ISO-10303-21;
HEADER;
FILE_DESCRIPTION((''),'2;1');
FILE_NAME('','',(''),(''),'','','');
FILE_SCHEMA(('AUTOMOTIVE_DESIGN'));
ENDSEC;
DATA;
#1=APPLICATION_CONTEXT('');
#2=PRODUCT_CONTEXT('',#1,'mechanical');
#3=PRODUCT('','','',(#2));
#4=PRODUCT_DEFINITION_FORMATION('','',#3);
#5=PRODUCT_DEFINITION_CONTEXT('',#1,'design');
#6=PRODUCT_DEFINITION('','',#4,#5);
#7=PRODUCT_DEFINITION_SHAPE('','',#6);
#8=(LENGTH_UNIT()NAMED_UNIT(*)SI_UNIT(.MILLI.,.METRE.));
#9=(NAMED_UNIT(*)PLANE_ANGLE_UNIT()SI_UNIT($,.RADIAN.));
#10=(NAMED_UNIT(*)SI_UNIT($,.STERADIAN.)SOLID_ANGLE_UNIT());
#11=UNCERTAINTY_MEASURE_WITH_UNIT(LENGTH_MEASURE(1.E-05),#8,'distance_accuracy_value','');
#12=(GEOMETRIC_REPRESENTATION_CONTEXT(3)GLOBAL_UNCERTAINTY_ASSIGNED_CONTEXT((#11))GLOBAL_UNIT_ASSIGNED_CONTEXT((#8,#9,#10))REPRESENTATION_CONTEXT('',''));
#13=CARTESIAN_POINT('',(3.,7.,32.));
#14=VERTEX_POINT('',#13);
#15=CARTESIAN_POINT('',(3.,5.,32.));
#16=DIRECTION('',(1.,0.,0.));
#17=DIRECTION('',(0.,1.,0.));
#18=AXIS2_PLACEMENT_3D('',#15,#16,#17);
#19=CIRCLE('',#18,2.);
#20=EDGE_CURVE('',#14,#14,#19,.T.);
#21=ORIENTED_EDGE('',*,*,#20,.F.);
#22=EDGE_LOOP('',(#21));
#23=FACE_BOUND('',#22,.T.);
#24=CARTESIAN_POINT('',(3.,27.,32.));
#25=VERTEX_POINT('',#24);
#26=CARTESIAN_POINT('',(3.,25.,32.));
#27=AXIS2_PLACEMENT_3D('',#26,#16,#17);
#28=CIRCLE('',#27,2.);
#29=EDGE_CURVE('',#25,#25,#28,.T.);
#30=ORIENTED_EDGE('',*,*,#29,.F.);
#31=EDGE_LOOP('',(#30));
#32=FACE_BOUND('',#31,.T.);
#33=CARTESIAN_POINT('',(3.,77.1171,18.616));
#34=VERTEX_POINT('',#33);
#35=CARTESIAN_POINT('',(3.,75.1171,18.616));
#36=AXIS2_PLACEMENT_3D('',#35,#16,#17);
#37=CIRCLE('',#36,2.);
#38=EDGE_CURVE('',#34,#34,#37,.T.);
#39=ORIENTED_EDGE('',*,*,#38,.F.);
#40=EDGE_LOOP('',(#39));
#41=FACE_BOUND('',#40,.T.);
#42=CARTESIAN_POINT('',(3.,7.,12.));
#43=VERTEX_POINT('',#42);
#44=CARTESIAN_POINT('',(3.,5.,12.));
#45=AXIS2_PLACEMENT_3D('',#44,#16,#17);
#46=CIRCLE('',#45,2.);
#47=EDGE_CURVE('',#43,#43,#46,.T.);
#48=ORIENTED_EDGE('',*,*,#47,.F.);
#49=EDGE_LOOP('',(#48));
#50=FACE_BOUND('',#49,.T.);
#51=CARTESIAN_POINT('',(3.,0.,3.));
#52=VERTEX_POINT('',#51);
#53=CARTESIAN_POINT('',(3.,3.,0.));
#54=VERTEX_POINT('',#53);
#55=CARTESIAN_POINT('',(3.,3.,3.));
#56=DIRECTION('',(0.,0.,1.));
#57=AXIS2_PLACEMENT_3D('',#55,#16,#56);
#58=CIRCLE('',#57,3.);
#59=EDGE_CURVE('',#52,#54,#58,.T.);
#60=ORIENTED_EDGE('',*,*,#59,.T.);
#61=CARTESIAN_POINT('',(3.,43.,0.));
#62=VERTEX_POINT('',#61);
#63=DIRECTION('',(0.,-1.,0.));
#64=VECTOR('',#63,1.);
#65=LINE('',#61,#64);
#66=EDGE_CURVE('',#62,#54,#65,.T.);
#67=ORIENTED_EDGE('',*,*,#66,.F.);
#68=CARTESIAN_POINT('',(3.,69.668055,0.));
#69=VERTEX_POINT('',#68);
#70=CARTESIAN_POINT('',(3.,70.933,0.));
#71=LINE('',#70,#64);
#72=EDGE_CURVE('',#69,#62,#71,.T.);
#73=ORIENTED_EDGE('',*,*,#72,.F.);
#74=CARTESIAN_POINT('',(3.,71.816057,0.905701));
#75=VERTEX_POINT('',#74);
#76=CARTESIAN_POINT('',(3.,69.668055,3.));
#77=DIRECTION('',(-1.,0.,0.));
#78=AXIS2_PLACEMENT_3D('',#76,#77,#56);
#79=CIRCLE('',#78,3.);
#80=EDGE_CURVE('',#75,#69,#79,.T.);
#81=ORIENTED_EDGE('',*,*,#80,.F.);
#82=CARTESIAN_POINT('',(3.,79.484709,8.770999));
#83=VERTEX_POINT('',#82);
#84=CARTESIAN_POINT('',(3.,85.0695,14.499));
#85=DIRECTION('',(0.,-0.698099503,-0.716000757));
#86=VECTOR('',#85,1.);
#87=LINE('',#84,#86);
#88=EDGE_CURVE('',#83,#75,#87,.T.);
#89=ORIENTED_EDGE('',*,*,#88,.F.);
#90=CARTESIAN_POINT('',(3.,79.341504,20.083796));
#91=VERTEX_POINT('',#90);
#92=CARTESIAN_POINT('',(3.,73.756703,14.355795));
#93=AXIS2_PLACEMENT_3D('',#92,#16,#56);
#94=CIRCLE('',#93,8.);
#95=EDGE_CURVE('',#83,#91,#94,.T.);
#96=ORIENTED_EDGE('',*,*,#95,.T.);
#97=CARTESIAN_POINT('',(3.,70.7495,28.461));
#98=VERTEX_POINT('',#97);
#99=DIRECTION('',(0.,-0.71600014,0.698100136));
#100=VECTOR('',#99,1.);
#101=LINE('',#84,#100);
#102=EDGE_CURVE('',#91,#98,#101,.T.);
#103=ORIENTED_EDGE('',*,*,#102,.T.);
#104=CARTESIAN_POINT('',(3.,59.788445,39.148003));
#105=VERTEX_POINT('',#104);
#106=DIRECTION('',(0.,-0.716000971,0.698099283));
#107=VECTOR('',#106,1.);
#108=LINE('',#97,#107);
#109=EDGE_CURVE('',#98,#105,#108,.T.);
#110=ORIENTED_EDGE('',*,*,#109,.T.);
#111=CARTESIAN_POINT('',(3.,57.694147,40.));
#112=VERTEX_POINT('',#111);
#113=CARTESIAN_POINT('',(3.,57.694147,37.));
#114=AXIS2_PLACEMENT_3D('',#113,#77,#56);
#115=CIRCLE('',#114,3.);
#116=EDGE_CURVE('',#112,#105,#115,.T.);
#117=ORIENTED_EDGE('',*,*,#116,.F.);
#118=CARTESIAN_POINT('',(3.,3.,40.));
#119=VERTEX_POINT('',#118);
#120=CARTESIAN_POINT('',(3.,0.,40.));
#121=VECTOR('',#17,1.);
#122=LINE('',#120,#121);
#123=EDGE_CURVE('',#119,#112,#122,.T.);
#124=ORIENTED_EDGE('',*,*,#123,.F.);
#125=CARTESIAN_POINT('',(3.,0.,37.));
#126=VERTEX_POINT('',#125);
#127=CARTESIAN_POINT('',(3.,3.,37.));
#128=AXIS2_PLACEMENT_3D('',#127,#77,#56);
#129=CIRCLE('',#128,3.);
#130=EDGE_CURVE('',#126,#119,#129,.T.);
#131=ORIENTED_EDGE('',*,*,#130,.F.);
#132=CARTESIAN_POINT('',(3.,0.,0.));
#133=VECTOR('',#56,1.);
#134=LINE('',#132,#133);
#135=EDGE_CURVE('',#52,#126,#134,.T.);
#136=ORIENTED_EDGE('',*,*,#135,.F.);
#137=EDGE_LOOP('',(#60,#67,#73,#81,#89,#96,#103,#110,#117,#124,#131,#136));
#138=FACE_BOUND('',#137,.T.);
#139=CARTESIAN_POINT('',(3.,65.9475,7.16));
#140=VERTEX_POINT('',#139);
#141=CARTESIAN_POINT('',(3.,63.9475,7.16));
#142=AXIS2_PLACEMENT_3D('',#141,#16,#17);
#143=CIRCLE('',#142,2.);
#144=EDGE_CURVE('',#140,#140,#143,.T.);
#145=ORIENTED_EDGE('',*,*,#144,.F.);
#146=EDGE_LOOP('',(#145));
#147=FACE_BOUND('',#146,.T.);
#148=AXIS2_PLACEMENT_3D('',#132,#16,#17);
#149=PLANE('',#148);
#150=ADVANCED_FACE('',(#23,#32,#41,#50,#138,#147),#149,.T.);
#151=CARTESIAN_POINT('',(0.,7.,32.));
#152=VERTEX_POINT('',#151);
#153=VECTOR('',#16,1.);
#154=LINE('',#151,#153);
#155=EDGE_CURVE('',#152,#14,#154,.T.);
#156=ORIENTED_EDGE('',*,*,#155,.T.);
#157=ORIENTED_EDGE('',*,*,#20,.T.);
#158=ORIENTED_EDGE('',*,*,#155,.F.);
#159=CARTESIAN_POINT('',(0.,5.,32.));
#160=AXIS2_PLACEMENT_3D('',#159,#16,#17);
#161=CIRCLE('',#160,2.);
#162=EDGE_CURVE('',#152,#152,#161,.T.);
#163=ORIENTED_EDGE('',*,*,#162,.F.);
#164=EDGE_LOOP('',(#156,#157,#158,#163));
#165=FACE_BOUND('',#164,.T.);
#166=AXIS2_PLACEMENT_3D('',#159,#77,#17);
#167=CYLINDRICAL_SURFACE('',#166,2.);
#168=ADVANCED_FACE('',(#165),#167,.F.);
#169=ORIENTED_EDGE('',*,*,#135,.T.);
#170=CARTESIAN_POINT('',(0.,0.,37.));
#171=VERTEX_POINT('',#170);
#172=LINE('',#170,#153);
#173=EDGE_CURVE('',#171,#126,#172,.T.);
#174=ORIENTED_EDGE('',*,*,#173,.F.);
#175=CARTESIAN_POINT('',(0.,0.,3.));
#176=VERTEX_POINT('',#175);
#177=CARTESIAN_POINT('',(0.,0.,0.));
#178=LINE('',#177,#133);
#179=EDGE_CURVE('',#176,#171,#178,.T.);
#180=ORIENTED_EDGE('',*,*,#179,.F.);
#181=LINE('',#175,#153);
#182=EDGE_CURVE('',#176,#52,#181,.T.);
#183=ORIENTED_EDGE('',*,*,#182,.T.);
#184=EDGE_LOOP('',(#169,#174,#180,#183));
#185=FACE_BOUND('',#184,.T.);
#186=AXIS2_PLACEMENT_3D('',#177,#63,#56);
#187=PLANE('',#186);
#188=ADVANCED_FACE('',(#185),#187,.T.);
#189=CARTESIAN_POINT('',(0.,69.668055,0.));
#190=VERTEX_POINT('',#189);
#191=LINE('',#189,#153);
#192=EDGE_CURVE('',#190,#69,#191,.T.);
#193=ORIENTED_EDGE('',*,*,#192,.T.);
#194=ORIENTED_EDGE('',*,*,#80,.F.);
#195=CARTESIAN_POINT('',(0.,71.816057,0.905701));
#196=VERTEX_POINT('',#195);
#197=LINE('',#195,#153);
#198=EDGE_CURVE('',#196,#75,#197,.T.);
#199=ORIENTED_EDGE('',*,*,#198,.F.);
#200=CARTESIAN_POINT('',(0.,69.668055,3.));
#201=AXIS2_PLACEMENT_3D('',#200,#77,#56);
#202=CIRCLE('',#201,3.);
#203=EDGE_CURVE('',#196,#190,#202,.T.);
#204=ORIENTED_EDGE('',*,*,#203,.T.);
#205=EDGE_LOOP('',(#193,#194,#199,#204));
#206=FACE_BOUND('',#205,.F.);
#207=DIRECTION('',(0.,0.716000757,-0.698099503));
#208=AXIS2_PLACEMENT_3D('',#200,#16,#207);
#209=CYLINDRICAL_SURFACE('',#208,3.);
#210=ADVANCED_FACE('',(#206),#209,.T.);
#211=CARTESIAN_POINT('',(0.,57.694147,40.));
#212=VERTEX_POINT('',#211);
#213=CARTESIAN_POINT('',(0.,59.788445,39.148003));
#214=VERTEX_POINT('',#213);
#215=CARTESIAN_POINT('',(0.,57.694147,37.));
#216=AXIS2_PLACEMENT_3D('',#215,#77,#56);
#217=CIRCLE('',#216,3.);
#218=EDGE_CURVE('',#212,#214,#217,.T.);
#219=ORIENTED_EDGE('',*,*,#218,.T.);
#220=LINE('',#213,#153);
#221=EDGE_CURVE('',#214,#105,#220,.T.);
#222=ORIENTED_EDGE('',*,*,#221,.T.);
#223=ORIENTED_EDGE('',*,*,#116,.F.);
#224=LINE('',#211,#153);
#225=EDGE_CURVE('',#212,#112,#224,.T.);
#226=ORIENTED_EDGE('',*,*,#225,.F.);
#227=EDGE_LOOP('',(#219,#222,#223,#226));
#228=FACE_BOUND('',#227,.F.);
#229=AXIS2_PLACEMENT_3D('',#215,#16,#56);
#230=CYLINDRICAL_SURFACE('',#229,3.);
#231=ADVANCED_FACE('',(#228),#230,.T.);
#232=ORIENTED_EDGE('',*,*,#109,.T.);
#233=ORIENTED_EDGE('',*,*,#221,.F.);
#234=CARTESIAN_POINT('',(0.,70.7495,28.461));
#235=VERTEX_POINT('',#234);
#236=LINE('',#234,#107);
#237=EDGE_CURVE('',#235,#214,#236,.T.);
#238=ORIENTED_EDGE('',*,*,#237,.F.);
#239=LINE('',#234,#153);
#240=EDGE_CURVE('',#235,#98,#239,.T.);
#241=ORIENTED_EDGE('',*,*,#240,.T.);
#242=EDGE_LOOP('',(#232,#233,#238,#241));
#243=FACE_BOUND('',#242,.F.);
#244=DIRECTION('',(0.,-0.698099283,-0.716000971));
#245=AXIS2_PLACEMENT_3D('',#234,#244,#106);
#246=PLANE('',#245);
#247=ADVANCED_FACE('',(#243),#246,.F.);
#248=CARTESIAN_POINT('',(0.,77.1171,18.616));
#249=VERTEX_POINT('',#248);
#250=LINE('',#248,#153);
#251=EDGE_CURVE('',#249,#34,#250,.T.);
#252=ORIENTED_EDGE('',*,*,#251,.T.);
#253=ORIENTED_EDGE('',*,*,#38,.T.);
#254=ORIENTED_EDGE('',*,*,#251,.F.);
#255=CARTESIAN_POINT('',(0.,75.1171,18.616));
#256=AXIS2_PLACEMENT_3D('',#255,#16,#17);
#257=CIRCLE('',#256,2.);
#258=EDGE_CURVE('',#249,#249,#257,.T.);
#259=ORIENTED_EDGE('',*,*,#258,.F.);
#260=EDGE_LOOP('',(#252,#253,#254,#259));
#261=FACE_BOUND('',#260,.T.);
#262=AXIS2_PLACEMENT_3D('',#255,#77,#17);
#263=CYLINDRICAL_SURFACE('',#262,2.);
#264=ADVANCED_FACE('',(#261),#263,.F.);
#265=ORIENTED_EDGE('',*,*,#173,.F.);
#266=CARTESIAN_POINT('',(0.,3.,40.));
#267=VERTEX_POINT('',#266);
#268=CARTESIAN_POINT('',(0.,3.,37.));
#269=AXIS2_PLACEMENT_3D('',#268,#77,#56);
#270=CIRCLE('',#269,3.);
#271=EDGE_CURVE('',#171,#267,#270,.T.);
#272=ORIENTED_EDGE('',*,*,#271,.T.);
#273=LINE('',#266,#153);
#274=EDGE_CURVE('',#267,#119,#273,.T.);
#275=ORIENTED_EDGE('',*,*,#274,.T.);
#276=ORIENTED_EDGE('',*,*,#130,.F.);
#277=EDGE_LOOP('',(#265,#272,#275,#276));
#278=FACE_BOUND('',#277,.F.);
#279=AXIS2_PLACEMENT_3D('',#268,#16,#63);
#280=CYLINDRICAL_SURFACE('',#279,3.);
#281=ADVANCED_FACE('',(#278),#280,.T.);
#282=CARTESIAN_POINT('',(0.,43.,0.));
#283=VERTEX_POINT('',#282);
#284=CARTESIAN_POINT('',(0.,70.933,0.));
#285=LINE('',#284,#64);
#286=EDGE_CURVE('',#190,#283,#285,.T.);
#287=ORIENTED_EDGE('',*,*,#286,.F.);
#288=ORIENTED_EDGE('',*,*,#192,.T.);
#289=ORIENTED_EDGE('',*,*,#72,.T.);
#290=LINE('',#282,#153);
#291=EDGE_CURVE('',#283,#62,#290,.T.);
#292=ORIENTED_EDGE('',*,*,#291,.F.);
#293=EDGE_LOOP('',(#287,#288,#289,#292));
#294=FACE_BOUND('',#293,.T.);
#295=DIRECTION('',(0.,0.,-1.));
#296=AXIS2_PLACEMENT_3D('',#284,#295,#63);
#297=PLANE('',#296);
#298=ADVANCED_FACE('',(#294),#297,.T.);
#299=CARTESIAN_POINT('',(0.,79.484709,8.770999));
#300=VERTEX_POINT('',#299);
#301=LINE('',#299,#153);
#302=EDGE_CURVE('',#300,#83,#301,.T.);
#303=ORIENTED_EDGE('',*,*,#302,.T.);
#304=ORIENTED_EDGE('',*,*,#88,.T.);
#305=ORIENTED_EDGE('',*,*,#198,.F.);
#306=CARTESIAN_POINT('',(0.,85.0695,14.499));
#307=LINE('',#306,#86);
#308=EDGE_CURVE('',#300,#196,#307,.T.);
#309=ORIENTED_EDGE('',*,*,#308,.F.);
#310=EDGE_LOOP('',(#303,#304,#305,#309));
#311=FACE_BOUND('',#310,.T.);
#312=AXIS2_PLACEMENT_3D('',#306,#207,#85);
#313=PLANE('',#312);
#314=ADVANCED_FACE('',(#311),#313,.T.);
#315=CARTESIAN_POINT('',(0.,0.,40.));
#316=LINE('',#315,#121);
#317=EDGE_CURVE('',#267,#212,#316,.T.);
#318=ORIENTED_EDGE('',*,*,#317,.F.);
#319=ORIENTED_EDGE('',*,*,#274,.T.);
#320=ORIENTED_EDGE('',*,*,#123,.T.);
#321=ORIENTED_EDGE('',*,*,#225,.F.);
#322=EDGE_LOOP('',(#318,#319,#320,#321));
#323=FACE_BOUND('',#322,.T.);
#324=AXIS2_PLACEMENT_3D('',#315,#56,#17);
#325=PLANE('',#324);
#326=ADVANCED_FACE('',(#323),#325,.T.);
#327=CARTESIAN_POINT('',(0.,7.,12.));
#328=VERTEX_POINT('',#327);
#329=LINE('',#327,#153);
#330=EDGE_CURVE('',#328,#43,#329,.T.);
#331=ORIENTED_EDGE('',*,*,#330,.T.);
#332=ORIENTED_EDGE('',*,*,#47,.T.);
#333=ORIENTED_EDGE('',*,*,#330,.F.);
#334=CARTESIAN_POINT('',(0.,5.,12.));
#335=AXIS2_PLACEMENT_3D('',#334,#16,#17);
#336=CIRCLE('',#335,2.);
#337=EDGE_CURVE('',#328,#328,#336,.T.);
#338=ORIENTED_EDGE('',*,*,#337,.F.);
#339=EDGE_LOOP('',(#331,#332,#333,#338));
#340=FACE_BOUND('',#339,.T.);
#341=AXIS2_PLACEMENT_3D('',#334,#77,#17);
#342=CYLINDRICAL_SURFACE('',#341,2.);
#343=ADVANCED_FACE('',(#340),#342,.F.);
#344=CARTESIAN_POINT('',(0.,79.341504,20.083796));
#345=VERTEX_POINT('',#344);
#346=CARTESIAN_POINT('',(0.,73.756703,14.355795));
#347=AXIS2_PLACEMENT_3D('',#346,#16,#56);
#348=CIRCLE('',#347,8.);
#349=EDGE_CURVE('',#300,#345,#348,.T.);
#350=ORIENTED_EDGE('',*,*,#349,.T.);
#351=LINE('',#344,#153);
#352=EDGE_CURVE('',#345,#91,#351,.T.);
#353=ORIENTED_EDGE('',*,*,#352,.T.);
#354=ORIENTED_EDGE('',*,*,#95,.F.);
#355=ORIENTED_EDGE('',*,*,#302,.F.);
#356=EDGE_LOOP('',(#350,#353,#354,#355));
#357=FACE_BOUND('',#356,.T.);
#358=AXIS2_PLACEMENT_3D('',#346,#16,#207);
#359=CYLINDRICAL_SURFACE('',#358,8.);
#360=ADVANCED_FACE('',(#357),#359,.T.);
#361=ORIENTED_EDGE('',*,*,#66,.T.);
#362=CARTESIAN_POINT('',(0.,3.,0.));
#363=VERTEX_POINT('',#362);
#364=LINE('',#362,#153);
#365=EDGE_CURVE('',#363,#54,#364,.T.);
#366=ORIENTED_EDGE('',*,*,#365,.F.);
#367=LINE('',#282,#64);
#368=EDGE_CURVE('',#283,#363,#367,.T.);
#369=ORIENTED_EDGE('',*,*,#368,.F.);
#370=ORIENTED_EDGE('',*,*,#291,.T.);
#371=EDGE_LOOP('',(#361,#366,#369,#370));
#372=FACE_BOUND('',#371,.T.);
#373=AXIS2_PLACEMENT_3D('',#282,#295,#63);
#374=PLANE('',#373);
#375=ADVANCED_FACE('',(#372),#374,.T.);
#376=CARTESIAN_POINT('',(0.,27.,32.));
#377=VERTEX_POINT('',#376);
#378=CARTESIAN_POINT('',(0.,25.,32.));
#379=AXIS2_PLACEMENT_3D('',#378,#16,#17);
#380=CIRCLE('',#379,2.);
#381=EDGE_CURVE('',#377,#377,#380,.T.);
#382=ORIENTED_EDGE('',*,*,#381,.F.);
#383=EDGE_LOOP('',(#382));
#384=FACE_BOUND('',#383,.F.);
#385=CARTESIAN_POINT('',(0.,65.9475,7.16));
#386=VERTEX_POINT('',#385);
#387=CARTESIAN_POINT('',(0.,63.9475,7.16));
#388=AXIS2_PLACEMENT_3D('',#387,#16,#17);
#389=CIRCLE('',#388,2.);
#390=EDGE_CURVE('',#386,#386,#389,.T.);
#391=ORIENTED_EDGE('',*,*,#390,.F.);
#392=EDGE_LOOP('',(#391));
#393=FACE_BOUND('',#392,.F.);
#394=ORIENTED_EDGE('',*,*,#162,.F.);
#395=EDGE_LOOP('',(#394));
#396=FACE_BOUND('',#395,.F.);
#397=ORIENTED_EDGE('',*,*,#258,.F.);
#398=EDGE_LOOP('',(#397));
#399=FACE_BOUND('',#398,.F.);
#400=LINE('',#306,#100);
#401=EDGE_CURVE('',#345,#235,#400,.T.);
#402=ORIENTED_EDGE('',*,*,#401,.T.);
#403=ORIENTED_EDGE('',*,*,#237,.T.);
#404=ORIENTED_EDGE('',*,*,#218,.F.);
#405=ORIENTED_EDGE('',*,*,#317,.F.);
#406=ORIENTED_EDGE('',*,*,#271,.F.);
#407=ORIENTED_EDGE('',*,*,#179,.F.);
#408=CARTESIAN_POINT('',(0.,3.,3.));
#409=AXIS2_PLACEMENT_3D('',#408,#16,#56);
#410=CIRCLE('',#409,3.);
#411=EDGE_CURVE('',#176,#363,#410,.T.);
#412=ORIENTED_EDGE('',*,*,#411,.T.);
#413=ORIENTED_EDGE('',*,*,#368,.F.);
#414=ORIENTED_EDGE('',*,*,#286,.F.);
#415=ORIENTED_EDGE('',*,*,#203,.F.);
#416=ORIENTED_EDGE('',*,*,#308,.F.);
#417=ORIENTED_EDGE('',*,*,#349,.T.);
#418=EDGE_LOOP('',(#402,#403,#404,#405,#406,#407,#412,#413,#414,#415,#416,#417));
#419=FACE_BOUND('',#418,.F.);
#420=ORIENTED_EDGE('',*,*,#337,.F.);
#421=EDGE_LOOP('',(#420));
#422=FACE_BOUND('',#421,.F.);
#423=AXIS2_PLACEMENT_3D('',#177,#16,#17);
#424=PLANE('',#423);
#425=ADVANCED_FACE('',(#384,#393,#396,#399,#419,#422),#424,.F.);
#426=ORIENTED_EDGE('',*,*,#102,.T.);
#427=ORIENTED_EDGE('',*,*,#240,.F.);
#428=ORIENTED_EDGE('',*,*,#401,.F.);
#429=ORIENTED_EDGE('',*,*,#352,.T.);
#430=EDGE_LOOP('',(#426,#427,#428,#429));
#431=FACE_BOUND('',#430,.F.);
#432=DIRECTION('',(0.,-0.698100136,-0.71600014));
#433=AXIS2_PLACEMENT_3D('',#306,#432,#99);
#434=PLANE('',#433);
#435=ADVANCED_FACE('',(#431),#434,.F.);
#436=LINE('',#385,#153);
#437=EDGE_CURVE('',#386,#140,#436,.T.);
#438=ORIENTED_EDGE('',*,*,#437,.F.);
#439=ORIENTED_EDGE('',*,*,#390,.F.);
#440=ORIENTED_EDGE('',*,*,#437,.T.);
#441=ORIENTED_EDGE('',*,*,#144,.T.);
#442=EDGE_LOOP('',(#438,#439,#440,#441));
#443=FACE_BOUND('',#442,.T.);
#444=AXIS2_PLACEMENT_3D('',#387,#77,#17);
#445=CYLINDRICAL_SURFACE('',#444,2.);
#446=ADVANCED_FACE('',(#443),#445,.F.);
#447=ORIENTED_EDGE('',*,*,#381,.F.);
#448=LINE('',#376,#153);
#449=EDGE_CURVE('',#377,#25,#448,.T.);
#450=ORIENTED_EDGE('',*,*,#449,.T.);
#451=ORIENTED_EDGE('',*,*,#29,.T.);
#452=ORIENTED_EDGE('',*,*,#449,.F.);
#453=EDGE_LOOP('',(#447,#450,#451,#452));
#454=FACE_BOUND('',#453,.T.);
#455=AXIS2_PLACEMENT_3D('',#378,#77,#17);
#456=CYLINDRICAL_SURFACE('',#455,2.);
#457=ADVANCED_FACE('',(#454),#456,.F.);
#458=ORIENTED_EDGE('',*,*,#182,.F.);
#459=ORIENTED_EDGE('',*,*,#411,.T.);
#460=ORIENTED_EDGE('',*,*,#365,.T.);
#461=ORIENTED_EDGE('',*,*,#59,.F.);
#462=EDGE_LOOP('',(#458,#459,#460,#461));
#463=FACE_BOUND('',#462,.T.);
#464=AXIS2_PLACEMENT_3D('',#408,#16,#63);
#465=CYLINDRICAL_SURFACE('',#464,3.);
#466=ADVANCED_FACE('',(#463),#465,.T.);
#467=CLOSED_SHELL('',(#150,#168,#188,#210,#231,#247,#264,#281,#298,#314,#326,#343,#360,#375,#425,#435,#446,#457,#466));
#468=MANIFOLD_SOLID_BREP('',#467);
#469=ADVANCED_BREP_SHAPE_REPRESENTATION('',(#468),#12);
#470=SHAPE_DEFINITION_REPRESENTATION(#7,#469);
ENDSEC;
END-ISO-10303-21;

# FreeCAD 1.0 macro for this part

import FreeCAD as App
import Part
import Sketcher

V = App.Vector
Q = App.Units.Quantity


def edges_at(feature, points):
    """Names of the edges that pass closest to the given points."""
    edges = feature.Shape.Edges
    near = lambda p: min(range(len(edges)), key=lambda i: edges[i].distToShape(Part.Vertex(*p))[0])
    return sorted({f"Edge{near(p) + 1}" for p in points})

doc = App.newDocument("Part")
params = doc.addObject("Spreadsheet::Sheet", "Params")
for row, (alias, value) in enumerate([
    ("sketch1_diameter", "4 mm"),
    ("sketch1_height", "40 mm"),
    ("sketch1_length", "20 mm"),
    ("sketch1_length2", "20.25 mm"),
    ("pad1_length", "3 mm"),
    ("fillet_radius", "3 mm"),
    ("fillet2_radius", "8 mm"),
], start=1):
    params.set(f"A{row}", alias)
    params.set(f"B{row}", "=" + value)
    params.setAlias(f"B{row}", alias)

body = doc.addObject("PartDesign::Body", "Body")

# Sketch on YZ plane
sketch1 = body.newObject("Sketcher::SketchObject", "Sketch")
sketch1.AttachmentSupport = (doc.getObject("YZ_Plane"), [""])
sketch1.MapMode = "FlatFace"
sketch1.addGeometry([
    Part.LineSegment(V(0, 40, 0), V(0, 0, 0)),  # 0
    Part.LineSegment(V(0, 0, 0), V(70.9, 0, 0)),  # 1
    Part.LineSegment(V(70.9, 0, 0), V(85.1, 14.5, 0)),  # 2
    Part.LineSegment(V(85.1, 14.5, 0), V(70.7, 28.5, 0)),  # 3
    Part.LineSegment(V(70.7, 28.5, 0), V(58.9, 40, 0)),  # 4
    Part.LineSegment(V(58.9, 40, 0), V(0, 40, 0)),  # 5
    Part.Circle(V(5, 12, 0), V(0, 0, 1), 2),  # 6
    Part.Circle(V(63.9, 7.2, 0), V(0, 0, 1), 2),  # 7
    Part.Circle(V(75.1, 18.6, 0), V(0, 0, 1), 2),  # 8
    Part.Circle(V(5, 32, 0), V(0, 0, 1), 2),  # 9
    Part.Circle(V(25, 32, 0), V(0, 0, 1), 2),  # 10
], False)
sketch1.addConstraint([
    Sketcher.Constraint("Coincident", 0, 2, 1, 1),
    Sketcher.Constraint("Coincident", 1, 2, 2, 1),
    Sketcher.Constraint("Coincident", 2, 2, 3, 1),
    Sketcher.Constraint("Coincident", 3, 2, 4, 1),
    Sketcher.Constraint("Coincident", 4, 2, 5, 1),
    Sketcher.Constraint("Coincident", 5, 2, 0, 1),
    Sketcher.Constraint("Vertical", 0),
    Sketcher.Constraint("Horizontal", 1),
    Sketcher.Constraint("Horizontal", 5),
    Sketcher.Constraint("Coincident", 0, 2, -1, 1),
    Sketcher.Constraint("Equal", 6, 7),
    Sketcher.Constraint("Equal", 7, 8),
    Sketcher.Constraint("Equal", 8, 9),
    Sketcher.Constraint("Equal", 9, 10),
    Sketcher.Constraint("Perpendicular", 2, 3),
    Sketcher.Constraint("Parallel", 3, 4),
    Sketcher.Constraint("Horizontal", 9, 3, 10, 3),
    Sketcher.Constraint("Vertical", 6, 3, 9, 3),
    Sketcher.Constraint("Diameter", 6, Q("4 mm")),
    Sketcher.Constraint("DistanceY", 0, 2, 0, 1, Q("40 mm")),
    Sketcher.Constraint("Distance", 3, Q("20 mm")),
    Sketcher.Constraint("DistanceX", -1, 1, 6, 3, Q("5 mm")),
    Sketcher.Constraint("DistanceY", 6, 3, 9, 3, Q("20 mm")),
    Sketcher.Constraint("DistanceX", 9, 3, 10, 3, Q("20 mm")),
    Sketcher.Constraint("DistanceY", 10, 3, 4, 2, Q("8 mm")),
    Sketcher.Constraint("Distance", 2, Q("20.25 mm")),
    Sketcher.Constraint("DistanceX", 1, 1, 1, 2, Q("70.933 mm")),
    Sketcher.Constraint("DistanceY", -1, 1, 7, 3, Q("7.16 mm")),
    Sketcher.Constraint("DistanceX", 3, 2, 2, 2, Q("14.32 mm")),
    Sketcher.Constraint("DistanceX", -1, 1, 8, 3, Q("75.117 mm")),
    Sketcher.Constraint("DistanceY", -1, 1, 8, 3, Q("18.616 mm")),
    Sketcher.Constraint("DistanceX", 7, 3, 2, 2, Q("21.122 mm")),
])
sketch1.setExpression("Constraints[18]", "Params.sketch1_diameter")
sketch1.setExpression("Constraints[19]", "Params.sketch1_height")
sketch1.setExpression("Constraints[20]", "Params.sketch1_length")
sketch1.setExpression("Constraints[25]", "Params.sketch1_length2")
pad1 = body.newObject("PartDesign::Pad", "Pad")
pad1.Profile = sketch1
pad1.setExpression("Length", "Params.pad1_length")
doc.recompute()

fillet = body.newObject("PartDesign::Fillet", "Fillet")
fillet.Base = (pad1, edges_at(pad1, [
    (1.5, 58.915, 40),
    (1.5, 70.933, 0),
    (1.5, 0, 40),
    (1.5, 0, 0),
]))
fillet.setExpression("Radius", "Params.fillet_radius")
doc.recompute()

fillet2 = body.newObject("PartDesign::Fillet", "Fillet001")
fillet2.Base = (fillet, edges_at(fillet, [(1.5, 85.07, 14.499)]))
fillet2.setExpression("Radius", "Params.fillet2_radius")

doc.recompute()
